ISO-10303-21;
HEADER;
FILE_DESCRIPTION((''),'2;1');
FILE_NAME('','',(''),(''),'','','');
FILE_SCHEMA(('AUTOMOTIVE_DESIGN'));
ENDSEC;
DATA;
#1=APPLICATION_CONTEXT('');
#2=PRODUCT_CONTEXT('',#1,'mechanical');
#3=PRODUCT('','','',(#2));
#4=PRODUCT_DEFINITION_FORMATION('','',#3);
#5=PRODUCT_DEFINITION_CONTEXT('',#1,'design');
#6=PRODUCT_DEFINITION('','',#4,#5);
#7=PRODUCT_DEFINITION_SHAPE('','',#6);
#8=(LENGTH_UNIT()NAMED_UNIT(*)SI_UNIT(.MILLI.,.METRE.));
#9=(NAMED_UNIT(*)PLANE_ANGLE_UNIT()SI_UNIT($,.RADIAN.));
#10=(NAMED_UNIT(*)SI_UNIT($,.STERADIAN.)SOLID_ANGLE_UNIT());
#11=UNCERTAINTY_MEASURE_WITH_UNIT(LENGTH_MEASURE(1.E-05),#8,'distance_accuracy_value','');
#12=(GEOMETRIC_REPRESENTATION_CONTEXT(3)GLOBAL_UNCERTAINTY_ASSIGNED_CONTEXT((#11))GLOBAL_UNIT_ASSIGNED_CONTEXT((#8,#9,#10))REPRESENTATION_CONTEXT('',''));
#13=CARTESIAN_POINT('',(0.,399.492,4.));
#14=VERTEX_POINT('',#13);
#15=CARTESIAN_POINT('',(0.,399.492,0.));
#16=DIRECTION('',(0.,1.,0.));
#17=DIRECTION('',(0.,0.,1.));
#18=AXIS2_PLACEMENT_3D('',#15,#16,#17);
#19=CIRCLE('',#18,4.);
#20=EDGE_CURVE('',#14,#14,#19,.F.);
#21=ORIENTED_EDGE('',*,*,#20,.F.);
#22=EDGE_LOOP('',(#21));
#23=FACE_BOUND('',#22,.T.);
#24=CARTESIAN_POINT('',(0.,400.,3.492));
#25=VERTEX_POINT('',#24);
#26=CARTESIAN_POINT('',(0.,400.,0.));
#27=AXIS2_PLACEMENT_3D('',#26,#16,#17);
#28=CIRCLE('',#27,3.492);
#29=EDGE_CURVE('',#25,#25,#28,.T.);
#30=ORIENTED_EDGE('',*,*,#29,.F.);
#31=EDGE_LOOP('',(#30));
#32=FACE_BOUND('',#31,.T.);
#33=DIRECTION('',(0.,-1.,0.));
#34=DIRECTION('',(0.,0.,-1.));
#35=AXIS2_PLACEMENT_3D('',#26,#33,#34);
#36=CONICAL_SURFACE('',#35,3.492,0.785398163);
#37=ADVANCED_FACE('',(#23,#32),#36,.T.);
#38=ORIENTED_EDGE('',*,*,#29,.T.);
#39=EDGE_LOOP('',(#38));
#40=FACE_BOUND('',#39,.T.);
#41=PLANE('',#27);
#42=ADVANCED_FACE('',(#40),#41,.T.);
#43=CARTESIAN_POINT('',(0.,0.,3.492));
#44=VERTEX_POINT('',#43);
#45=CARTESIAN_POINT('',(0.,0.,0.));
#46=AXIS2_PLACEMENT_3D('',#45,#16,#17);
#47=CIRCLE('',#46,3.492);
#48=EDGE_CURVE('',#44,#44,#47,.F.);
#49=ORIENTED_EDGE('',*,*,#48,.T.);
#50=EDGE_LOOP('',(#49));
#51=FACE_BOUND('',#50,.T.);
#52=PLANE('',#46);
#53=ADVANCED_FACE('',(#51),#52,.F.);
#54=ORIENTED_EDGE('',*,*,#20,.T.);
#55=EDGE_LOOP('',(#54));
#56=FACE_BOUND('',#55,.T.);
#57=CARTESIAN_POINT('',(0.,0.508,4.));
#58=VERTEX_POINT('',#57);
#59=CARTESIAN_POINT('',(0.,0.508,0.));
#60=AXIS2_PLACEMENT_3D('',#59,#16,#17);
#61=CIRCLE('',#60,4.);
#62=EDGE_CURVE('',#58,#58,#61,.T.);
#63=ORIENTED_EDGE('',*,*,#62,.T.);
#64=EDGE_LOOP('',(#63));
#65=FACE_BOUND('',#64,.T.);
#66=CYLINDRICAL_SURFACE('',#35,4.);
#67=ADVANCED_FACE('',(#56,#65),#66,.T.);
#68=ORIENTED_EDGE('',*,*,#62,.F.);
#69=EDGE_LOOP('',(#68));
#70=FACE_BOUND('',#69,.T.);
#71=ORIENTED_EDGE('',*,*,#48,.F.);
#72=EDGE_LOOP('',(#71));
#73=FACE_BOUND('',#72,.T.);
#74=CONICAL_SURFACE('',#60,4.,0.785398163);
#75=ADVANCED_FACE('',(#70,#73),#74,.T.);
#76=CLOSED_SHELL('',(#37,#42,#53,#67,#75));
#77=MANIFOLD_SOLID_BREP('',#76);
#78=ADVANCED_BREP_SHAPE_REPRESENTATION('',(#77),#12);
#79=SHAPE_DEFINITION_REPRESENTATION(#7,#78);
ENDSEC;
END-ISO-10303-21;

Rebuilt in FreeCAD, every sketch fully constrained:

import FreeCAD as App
import Part
import Sketcher

V = App.Vector


def edges_at(feature, points):
    """Names of the edges that pass closest to the given points."""
    edges = feature.Shape.Edges
    near = lambda p: min(range(len(edges)), key=lambda i: edges[i].distToShape(Part.Vertex(*p))[0])
    return sorted({f"Edge{near(p) + 1}" for p in points})

doc = App.newDocument("Part")
params = doc.addObject("Spreadsheet::Sheet", "Params")
for row, (alias, value) in enumerate([
    ("sketch1_diameter", "8 mm"),
    ("pad1_length", "400 mm"),
    ("chamfer_size", "0.508 mm"),
], start=1):
    params.set(f"A{row}", alias)
    params.set(f"B{row}", "=" + value)
    params.setAlias(f"B{row}", alias)

body = doc.addObject("PartDesign::Body", "Body")

sketch1 = body.newObject("Sketcher::SketchObject", "Sketch")
sketch1.AttachmentSupport = (doc.getObject("XZ_Plane"), [""])
sketch1.MapMode = "FlatFace"
sketch1.addGeometry(Part.Circle(V(0, 0, 0), V(0, 0, 1), 4), False)
sketch1.addConstraint([
    Sketcher.Constraint("Coincident", 0, 3, -1, 1),
    Sketcher.Constraint("Diameter", 0, 8.0),
])
sketch1.setExpression("Constraints[1]", "Params.sketch1_diameter")
pad1 = body.newObject("PartDesign::Pad", "Pad")
pad1.Profile = sketch1
pad1.setExpression("Length", "Params.pad1_length")
pad1.Reversed = True
doc.recompute()

chamfer = body.newObject("PartDesign::Chamfer", "Chamfer")
chamfer.Base = (pad1, edges_at(pad1, [(-4, 0, 0), (-4, 400, 0)]))
chamfer.setExpression("Size", "Params.chamfer_size")

doc.recompute()
